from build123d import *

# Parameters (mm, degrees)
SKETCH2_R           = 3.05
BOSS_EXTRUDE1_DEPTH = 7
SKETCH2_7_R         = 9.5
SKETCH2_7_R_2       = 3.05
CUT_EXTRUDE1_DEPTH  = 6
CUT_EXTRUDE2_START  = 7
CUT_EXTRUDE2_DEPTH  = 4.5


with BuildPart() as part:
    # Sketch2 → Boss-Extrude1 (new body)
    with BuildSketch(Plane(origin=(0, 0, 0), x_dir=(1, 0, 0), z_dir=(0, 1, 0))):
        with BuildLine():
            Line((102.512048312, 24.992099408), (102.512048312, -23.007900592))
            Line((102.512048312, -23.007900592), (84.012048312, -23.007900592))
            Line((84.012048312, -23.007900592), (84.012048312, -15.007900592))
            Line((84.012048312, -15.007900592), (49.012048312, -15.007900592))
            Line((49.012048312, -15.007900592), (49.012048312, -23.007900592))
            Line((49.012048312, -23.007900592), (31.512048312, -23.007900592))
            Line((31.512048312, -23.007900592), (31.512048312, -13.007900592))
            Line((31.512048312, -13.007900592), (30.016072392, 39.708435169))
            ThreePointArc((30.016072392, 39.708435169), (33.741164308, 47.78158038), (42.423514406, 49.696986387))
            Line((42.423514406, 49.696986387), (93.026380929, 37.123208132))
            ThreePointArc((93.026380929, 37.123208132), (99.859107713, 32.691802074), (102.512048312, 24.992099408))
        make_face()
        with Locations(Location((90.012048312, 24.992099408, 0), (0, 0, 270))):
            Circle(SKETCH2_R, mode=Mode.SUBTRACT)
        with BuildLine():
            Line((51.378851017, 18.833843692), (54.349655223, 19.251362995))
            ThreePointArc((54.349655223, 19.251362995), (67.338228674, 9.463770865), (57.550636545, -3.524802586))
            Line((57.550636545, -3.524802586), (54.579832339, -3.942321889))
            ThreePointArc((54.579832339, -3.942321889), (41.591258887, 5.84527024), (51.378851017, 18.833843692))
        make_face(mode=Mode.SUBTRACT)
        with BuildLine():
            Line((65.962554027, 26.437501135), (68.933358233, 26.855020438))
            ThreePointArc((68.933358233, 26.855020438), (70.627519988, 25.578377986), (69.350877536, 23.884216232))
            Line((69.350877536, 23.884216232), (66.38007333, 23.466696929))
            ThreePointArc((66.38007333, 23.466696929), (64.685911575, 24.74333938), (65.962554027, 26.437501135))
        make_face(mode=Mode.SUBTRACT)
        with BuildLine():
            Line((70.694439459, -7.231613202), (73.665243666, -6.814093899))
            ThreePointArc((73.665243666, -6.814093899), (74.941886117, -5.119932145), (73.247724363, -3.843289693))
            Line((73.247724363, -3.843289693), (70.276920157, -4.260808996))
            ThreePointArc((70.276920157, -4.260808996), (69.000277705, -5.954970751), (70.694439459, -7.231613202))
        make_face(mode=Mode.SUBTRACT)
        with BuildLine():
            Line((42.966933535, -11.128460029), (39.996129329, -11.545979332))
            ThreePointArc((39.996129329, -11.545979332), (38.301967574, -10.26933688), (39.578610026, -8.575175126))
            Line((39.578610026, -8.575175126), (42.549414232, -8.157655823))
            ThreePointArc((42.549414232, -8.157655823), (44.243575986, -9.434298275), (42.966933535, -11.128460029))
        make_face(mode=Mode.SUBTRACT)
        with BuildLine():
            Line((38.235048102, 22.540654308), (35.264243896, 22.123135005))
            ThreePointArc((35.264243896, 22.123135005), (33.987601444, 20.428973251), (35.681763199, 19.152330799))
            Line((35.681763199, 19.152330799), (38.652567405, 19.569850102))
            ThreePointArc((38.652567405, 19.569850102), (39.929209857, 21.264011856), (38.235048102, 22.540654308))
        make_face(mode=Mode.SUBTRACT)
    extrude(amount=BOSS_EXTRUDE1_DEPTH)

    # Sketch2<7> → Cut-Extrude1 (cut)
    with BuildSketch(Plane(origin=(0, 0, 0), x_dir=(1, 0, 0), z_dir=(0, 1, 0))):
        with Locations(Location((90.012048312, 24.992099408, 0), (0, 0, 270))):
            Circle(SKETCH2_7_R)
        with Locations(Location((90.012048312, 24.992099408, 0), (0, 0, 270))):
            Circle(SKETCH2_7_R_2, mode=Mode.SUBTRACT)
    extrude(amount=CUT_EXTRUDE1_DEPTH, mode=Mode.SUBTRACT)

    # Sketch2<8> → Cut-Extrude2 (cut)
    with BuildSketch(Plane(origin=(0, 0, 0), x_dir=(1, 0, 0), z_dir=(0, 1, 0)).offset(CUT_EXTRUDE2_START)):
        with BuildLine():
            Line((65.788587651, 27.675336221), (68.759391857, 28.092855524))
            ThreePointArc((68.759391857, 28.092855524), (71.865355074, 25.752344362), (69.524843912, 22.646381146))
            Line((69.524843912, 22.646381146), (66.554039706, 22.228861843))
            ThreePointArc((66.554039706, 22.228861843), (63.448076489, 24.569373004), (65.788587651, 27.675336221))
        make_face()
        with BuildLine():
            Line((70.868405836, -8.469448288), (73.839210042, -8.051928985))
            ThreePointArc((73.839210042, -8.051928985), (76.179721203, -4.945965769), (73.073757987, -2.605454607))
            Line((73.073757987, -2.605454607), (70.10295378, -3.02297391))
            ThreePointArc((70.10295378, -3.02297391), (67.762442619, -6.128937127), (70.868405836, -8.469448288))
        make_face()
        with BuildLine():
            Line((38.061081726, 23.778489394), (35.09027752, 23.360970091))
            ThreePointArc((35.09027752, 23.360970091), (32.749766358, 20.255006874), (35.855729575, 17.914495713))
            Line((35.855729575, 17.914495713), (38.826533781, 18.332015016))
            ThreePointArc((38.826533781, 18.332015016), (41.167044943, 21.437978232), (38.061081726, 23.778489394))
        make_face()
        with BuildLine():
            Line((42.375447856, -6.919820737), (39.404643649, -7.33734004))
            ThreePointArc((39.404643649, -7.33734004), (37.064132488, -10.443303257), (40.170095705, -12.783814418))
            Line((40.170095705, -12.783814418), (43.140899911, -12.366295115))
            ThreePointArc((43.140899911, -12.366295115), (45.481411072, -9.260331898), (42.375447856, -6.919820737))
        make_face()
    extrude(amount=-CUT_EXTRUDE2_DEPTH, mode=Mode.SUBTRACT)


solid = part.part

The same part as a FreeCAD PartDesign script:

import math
import FreeCAD as App
import Part
import Sketcher
from FreeCAD import Vector
Q = App.Units.Quantity

doc = App.newDocument("Part")
params = doc.addObject("Spreadsheet::Sheet", "Params")
for row, (alias, value) in enumerate([
    ("sketch1_radius", "10 mm"),
    ("sketch1_diameter", "6.1 mm"),
    ("sketch1_radius2", "12.5 mm"),
    ("sketch1_radius3", "1.5 mm"),
    ("sketch1_radius4", "11.5 mm"),
    ("pad1_length", "7 mm"),
    ("sketch2_diameter", "19 mm"),
    ("sketch2_diameter2", "6.1 mm"),
    ("pocket1_length", "6 mm"),
    ("sketch3_radius", "2.75 mm"),
    ("sketch3_length", "3 mm"),
    ("pocket2_length", "4.5 mm"),
], start=1):
    params.set(f"A{row}", alias)
    params.set(f"B{row}", "=" + value)
    params.setAlias(f"B{row}", alias)

body = doc.addObject("PartDesign::Body", "Body")

sketch1 = doc.addObject("Sketcher::SketchObject", "Sketch")
body.addObject(sketch1)
sketch1.AttachmentSupport = (doc.XZ_Plane, [""])
sketch1.MapMode = "FlatFace"
sketch1.addGeometry([
    Part.LineSegment(Vector(102.5, 23, 0), Vector(102.5, -25, 0)),
    Part.ArcOfCircle(Part.Circle(Vector(90, -25, 0), Vector(0, 0, 1), 12.5), math.radians(-76), math.radians(0)),
    Part.LineSegment(Vector(93, -37.1, 0), Vector(42.4, -49.7, 0)),
    Part.ArcOfCircle(Part.Circle(Vector(40, -40, 0), Vector(0, 0, 1), 10), math.radians(178), math.radians(284)),
    Part.LineSegment(Vector(30, -39.7, 0), Vector(31.5, 13, 0)),
    Part.LineSegment(Vector(31.5, 13, 0), Vector(31.5, 23, 0)),
    Part.LineSegment(Vector(31.5, 23, 0), Vector(49, 23, 0)),
    Part.LineSegment(Vector(49, 23, 0), Vector(49, 15, 0)),
    Part.LineSegment(Vector(49, 15, 0), Vector(84, 15, 0)),
    Part.LineSegment(Vector(84, 15, 0), Vector(84, 23, 0)),
    Part.LineSegment(Vector(84, 23, 0), Vector(102.5, 23, 0)),
    Part.ArcOfCircle(Part.Circle(Vector(70.5, 5.7, 0), Vector(0, 0, 1), 1.5), math.radians(82), math.radians(262)),
    Part.LineSegment(Vector(70.3, 4.3, 0), Vector(73.2, 3.8, 0)),
    Part.ArcOfCircle(Part.Circle(Vector(73.5, 5.3, 0), Vector(0, 0, 1), 1.5), math.radians(-98), math.radians(82)),
    Part.LineSegment(Vector(73.7, 6.8, 0), Vector(70.7, 7.2, 0)),
    Part.LineSegment(Vector(43, 11.1, 0), Vector(40, 11.5, 0)),
    Part.ArcOfCircle(Part.Circle(Vector(39.8, 10.1, 0), Vector(0, 0, 1), 1.5), math.radians(82), math.radians(262)),
    Part.LineSegment(Vector(39.6, 8.6, 0), Vector(42.5, 8.2, 0)),
    Part.ArcOfCircle(Part.Circle(Vector(42.8, 9.6, 0), Vector(0, 0, 1), 1.5), math.radians(-98), math.radians(82)),
    Part.LineSegment(Vector(51.4, -18.8, 0), Vector(54.3, -19.3, 0)),
    Part.ArcOfCircle(Part.Circle(Vector(56, -7.9, 0), Vector(0, 0, 1), 11.5), math.radians(-98), math.radians(82)),
    Part.LineSegment(Vector(57.6, 3.5, 0), Vector(54.6, 3.9, 0)),
    Part.ArcOfCircle(Part.Circle(Vector(53, -7.4, 0), Vector(0, 0, 1), 11.5), math.radians(82), math.radians(262)),
    Part.Circle(Vector(90, -25, 0), Vector(0, 0, 1), 3),
    Part.LineSegment(Vector(66, -26.4, 0), Vector(68.9, -26.9, 0)),
    Part.ArcOfCircle(Part.Circle(Vector(69.1, -25.4, 0), Vector(0, 0, 1), 1.5), math.radians(-98), math.radians(82)),
    Part.LineSegment(Vector(69.4, -23.9, 0), Vector(66.4, -23.5, 0)),
    Part.ArcOfCircle(Part.Circle(Vector(66.2, -25, 0), Vector(0, 0, 1), 1.5), math.radians(82), math.radians(262)),
    Part.ArcOfCircle(Part.Circle(Vector(38.4, -21.1, 0), Vector(0, 0, 1), 1.5), math.radians(-98), math.radians(82)),
    Part.LineSegment(Vector(38.7, -19.6, 0), Vector(35.7, -19.2, 0)),
    Part.ArcOfCircle(Part.Circle(Vector(35.5, -20.6, 0), Vector(0, 0, 1), 1.5), math.radians(82), math.radians(262)),
    Part.LineSegment(Vector(35.3, -22.1, 0), Vector(38.2, -22.5, 0)),
], False)
sketch1.addConstraint([
    Sketcher.Constraint("Tangent", 0, 2, 1, 2),
    Sketcher.Constraint("Tangent", 1, 1, 2, 1),
    Sketcher.Constraint("Tangent", 2, 2, 3, 2),
    Sketcher.Constraint("Tangent", 3, 1, 4, 1),
    Sketcher.Constraint("Coincident", 4, 2, 5, 1),
    Sketcher.Constraint("Coincident", 5, 2, 6, 1),
    Sketcher.Constraint("Coincident", 6, 2, 7, 1),
    Sketcher.Constraint("Coincident", 7, 2, 8, 1),
    Sketcher.Constraint("Coincident", 8, 2, 9, 1),
    Sketcher.Constraint("Coincident", 9, 2, 10, 1),
    Sketcher.Constraint("Coincident", 10, 2, 0, 1),
    Sketcher.Constraint("Tangent", 11, 2, 12, 1),
    Sketcher.Constraint("Tangent", 12, 2, 13, 1),
    Sketcher.Constraint("Tangent", 13, 2, 14, 1),
    Sketcher.Constraint("Tangent", 14, 2, 11, 1),
    Sketcher.Constraint("Tangent", 15, 2, 16, 1),
    Sketcher.Constraint("Tangent", 16, 2, 17, 1),
    Sketcher.Constraint("Tangent", 17, 2, 18, 1),
    Sketcher.Constraint("Tangent", 18, 2, 15, 1),
    Sketcher.Constraint("Tangent", 19, 2, 20, 1),
    Sketcher.Constraint("Tangent", 20, 2, 21, 1),
    Sketcher.Constraint("Tangent", 21, 2, 22, 1),
    Sketcher.Constraint("Tangent", 22, 2, 19, 1),
    Sketcher.Constraint("Tangent", 24, 2, 25, 1),
    Sketcher.Constraint("Tangent", 25, 2, 26, 1),
    Sketcher.Constraint("Tangent", 26, 2, 27, 1),
    Sketcher.Constraint("Tangent", 27, 2, 24, 1),
    Sketcher.Constraint("Tangent", 28, 2, 29, 1),
    Sketcher.Constraint("Tangent", 29, 2, 30, 1),
    Sketcher.Constraint("Tangent", 30, 2, 31, 1),
    Sketcher.Constraint("Tangent", 31, 2, 28, 1),
    Sketcher.Constraint("Vertical", 0),
    Sketcher.Constraint("Vertical", 5),
    Sketcher.Constraint("Horizontal", 6),
    Sketcher.Constraint("Vertical", 7),
    Sketcher.Constraint("Horizontal", 8),
    Sketcher.Constraint("Vertical", 9),
    Sketcher.Constraint("Horizontal", 10),
    Sketcher.Constraint("Coincident", 23, 3, 1, 3),
    Sketcher.Constraint("Equal", 11, 13),
    Sketcher.Constraint("Equal", 13, 16),
    Sketcher.Constraint("Equal", 16, 18),
    Sketcher.Constraint("Equal", 20, 22),
    Sketcher.Constraint("Equal", 18, 25),
    Sketcher.Constraint("Equal", 25, 27),
    Sketcher.Constraint("Equal", 27, 28),
    Sketcher.Constraint("Equal", 28, 30),
    Sketcher.Constraint("Parallel", 14, 15),
    Sketcher.Constraint("Parallel", 17, 19),
    Sketcher.Constraint("Parallel", 21, 24),
    Sketcher.Constraint("Parallel", 26, 29),
    Sketcher.Constraint("Horizontal", 6, 2, 9, 2),
    Sketcher.Constraint("Equal", 14, 15),
    Sketcher.Constraint("Equal", 17, 19),
    Sketcher.Constraint("Equal", 21, 24),
    Sketcher.Constraint("Equal", 26, 29),
    Sketcher.Constraint("Radius", 3, Q("10 mm")),
    Sketcher.Constraint("Diameter", 23, Q("6.1 mm")),
    Sketcher.Constraint("Radius", 1, Q("12.5 mm")),
    Sketcher.Constraint("Radius", 11, Q("1.5 mm")),
    Sketcher.Constraint("Radius", 20, Q("11.5 mm")),
    Sketcher.Constraint("DistanceX", 8, 1, 8, 2, Q("35 mm")),
    Sketcher.Constraint("DistanceY", 0, 2, 0, 1, Q("48 mm")),
    Sketcher.Constraint("DistanceY", 5, 1, 5, 2, Q("10 mm")),
    Sketcher.Constraint("DistanceY", 7, 2, 7, 1, Q("8 mm")),
    Sketcher.Constraint("Angle", 12, Q("-8 deg")),
    Sketcher.Constraint("Distance", 12, Q("3 mm")),
    Sketcher.Constraint("DistanceX", 6, 1, 6, 2, Q("17.5 mm")),
    Sketcher.Constraint("DistanceX", 10, 1, 10, 2, Q("18.5 mm")),
    Sketcher.Constraint("DistanceX", 3, 3, 1, 3, Q("50 mm")),
    Sketcher.Constraint("DistanceY", 3, 3, 1, 3, Q("15 mm")),
    Sketcher.Constraint("DistanceY", 1, 3, 27, 3, Q("0.04 mm")),
    Sketcher.Constraint("DistanceY", 1, 3, -1, 1, Q("24.992099 mm")),
    Sketcher.Constraint("DistanceX", 2, 2, 27, 3, Q("23.747799 mm")),
    Sketcher.Constraint("DistanceX", -1, 1, 1, 3, Q("90.012048 mm")),
    Sketcher.Constraint("DistanceX", -1, 1, 11, 3, Q("70.48568 mm")),
    Sketcher.Constraint("DistanceY", -1, 1, 11, 3, Q("5.746211 mm")),
    Sketcher.Constraint("DistanceX", -1, 1, 16, 3, Q("39.78737 mm")),
    Sketcher.Constraint("DistanceY", 20, 3, -1, 1, Q("7.86328 mm")),
    Sketcher.Constraint("DistanceX", -1, 1, 22, 3, Q("52.979342 mm")),
    Sketcher.Constraint("DistanceY", -1, 1, 15, 2, Q("11.545979 mm")),
    Sketcher.Constraint("DistanceY", 28, 2, -1, 1, Q("19.56985 mm")),
    Sketcher.Constraint("DistanceX", -1, 1, 31, 2, Q("38.235048 mm")),
])
sketch1.setExpression("Constraints[56]", "Params.sketch1_radius")
sketch1.setExpression("Constraints[57]", "Params.sketch1_diameter")
sketch1.setExpression("Constraints[58]", "Params.sketch1_radius2")
sketch1.setExpression("Constraints[59]", "Params.sketch1_radius3")
sketch1.setExpression("Constraints[60]", "Params.sketch1_radius4")
pad1 = doc.addObject("PartDesign::Pad", "Pad")
body.addObject(pad1)
pad1.Profile = sketch1
pad1.setExpression("Length", "Params.pad1_length")
pad1.Reversed = True

sketch2 = doc.addObject("Sketcher::SketchObject", "Sketch001")
body.addObject(sketch2)
sketch2.AttachmentSupport = (doc.XZ_Plane, [""])
sketch2.MapMode = "FlatFace"
sketch2.addGeometry([
    Part.Circle(Vector(90, -25, 0), Vector(0, 0, 1), 9.5),
    Part.Circle(Vector(90, -25, 0), Vector(0, 0, 1), 3),
], False)
sketch2.addConstraint([
    Sketcher.Constraint("Coincident", 1, 3, 0, 3),
    Sketcher.Constraint("Diameter", 0, Q("19 mm")),
    Sketcher.Constraint("Diameter", 1, Q("6.1 mm")),
    Sketcher.Constraint("DistanceY", 0, 3, -1, 1, Q("24.992099 mm")),
    Sketcher.Constraint("DistanceX", -1, 1, 0, 3, Q("90.012048 mm")),
])
sketch2.setExpression("Constraints[1]", "Params.sketch2_diameter")
sketch2.setExpression("Constraints[2]", "Params.sketch2_diameter2")
pocket1 = doc.addObject("PartDesign::Pocket", "Pocket")
body.addObject(pocket1)
pocket1.Profile = sketch2
pocket1.setExpression("Length", "Params.pocket1_length")

sketch3 = doc.addObject("Sketcher::SketchObject", "Sketch002")
body.addObject(sketch3)
sketch3.AttachmentSupport = (doc.XZ_Plane, [""])
sketch3.MapMode = "FlatFace"
sketch3.AttachmentOffset = App.Placement(Vector(0, 0, -7), App.Rotation())
sketch3.addGeometry([
    Part.LineSegment(Vector(68.8, -28.1, 0), Vector(65.8, -27.7, 0)),
    Part.ArcOfCircle(Part.Circle(Vector(66.2, -25, 0), Vector(0, 0, 1), 2.8), math.radians(82), math.radians(262)),
    Part.LineSegment(Vector(66.6, -22.2, 0), Vector(69.5, -22.6, 0)),
    Part.ArcOfCircle(Part.Circle(Vector(69.1, -25.4, 0), Vector(0, 0, 1), 2.8), math.radians(-98), math.radians(82)),
    Part.LineSegment(Vector(70.9, 8.5, 0), Vector(73.8, 8.1, 0)),
    Part.ArcOfCircle(Part.Circle(Vector(73.5, 5.3, 0), Vector(0, 0, 1), 2.8), math.radians(-98), math.radians(82)),
    Part.LineSegment(Vector(73.1, 2.6, 0), Vector(70.1, 3, 0)),
    Part.ArcOfCircle(Part.Circle(Vector(70.5, 5.7, 0), Vector(0, 0, 1), 2.8), math.radians(82), math.radians(262)),
    Part.LineSegment(Vector(38.1, -23.8, 0), Vector(35.1, -23.4, 0)),
    Part.ArcOfCircle(Part.Circle(Vector(35.5, -20.6, 0), Vector(0, 0, 1), 2.8), math.radians(82), math.radians(262)),
    Part.LineSegment(Vector(35.9, -17.9, 0), Vector(38.8, -18.3, 0)),
    Part.ArcOfCircle(Part.Circle(Vector(38.4, -21.1, 0), Vector(0, 0, 1), 2.8), math.radians(-98), math.radians(82)),
    Part.LineSegment(Vector(42.4, 6.9, 0), Vector(39.4, 7.3, 0)),
    Part.ArcOfCircle(Part.Circle(Vector(39.8, 10.1, 0), Vector(0, 0, 1), 2.8), math.radians(82), math.radians(262)),
    Part.LineSegment(Vector(40.2, 12.8, 0), Vector(43.1, 12.4, 0)),
    Part.ArcOfCircle(Part.Circle(Vector(42.8, 9.6, 0), Vector(0, 0, 1), 2.8), math.radians(-98), math.radians(82)),
], False)
sketch3.addConstraint([
    Sketcher.Constraint("Tangent", 0, 2, 1, 2),
    Sketcher.Constraint("Tangent", 1, 1, 2, 1),
    Sketcher.Constraint("Tangent", 2, 2, 3, 2),
    Sketcher.Constraint("Tangent", 3, 1, 0, 1),
    Sketcher.Constraint("Tangent", 4, 2, 5, 2),
    Sketcher.Constraint("Tangent", 5, 1, 6, 1),
    Sketcher.Constraint("Tangent", 6, 2, 7, 2),
    Sketcher.Constraint("Tangent", 7, 1, 4, 1),
    Sketcher.Constraint("Tangent", 8, 2, 9, 2),
    Sketcher.Constraint("Tangent", 9, 1, 10, 1),
    Sketcher.Constraint("Tangent", 10, 2, 11, 2),
    Sketcher.Constraint("Tangent", 11, 1, 8, 1),
    Sketcher.Constraint("Tangent", 12, 2, 13, 2),
    Sketcher.Constraint("Tangent", 13, 1, 14, 1),
    Sketcher.Constraint("Tangent", 14, 2, 15, 2),
    Sketcher.Constraint("Tangent", 15, 1, 12, 1),
    Sketcher.Constraint("Equal", 1, 3),
    Sketcher.Constraint("Equal", 3, 5),
    Sketcher.Constraint("Equal", 5, 7),
    Sketcher.Constraint("Equal", 7, 9),
    Sketcher.Constraint("Equal", 9, 11),
    Sketcher.Constraint("Equal", 11, 13),
    Sketcher.Constraint("Equal", 13, 15),
    Sketcher.Constraint("Parallel", 2, 4),
    Sketcher.Constraint("Parallel", 6, 8),
    Sketcher.Constraint("Parallel", 10, 12),
    Sketcher.Constraint("Equal", 2, 4),
    Sketcher.Constraint("Equal", 6, 8),
    Sketcher.Constraint("Equal", 10, 12),
    Sketcher.Constraint("Angle", 0, Q("172 deg")),
    Sketcher.Constraint("Radius", 1, Q("2.75 mm")),
    Sketcher.Constraint("Distance", 0, Q("3 mm")),
    Sketcher.Constraint("DistanceY", 1, 3, -1, 1, Q("24.952099 mm")),
    Sketcher.Constraint("DistanceX", -1, 1, 14, 2, Q("43.1409 mm")),
    Sketcher.Constraint("DistanceY", -1, 1, 5, 3, Q("5.328692 mm")),
    Sketcher.Constraint("DistanceX", -1, 1, 7, 3, Q("70.48568 mm")),
    Sketcher.Constraint("DistanceX", -1, 1, 1, 1, Q("66.55404 mm")),
    Sketcher.Constraint("DistanceY", 8, 2, -1, 1, Q("23.36097 mm")),
    Sketcher.Constraint("DistanceX", -1, 1, 9, 1, Q("35.85573 mm")),
    Sketcher.Constraint("DistanceY", -1, 1, 12, 2, Q("7.33734 mm")),
])
sketch3.setExpression("Constraints[30]", "Params.sketch3_radius")
sketch3.setExpression("Constraints[31]", "Params.sketch3_length")
pocket2 = doc.addObject("PartDesign::Pocket", "Pocket001")
body.addObject(pocket2)
pocket2.Profile = sketch3
pocket2.setExpression("Length", "Params.pocket2_length")
pocket2.Reversed = True

doc.recompute()
